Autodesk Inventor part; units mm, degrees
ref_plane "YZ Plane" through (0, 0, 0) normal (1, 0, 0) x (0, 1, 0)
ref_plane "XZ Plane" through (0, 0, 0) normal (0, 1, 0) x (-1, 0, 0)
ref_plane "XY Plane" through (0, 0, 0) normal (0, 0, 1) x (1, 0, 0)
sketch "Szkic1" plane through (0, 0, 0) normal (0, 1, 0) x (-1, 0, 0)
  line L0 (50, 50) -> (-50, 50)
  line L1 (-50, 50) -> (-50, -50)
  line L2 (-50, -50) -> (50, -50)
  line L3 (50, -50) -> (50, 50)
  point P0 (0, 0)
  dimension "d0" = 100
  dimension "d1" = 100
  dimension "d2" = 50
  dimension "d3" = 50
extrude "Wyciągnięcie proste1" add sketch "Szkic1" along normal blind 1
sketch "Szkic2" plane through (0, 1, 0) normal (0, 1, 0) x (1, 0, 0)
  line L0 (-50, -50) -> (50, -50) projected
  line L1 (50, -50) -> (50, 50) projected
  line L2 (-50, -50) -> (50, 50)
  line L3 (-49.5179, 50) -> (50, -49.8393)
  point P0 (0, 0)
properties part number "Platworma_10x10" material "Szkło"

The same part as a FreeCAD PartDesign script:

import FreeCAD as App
import Part
import Sketcher
from FreeCAD import Vector

doc = App.newDocument("Part")
body = doc.addObject("PartDesign::Body", "Body")

# Sketch on XZ plane
sketch1 = body.newObject("Sketcher::SketchObject", "Sketch")
sketch1.AttachmentSupport = (doc.getObject("XZ_Plane"), [""])
sketch1.MapMode = "FlatFace"
sketch1.addGeometry([
    Part.LineSegment(Vector(-50, -50, 0), Vector(-50, 50, 0)),
    Part.LineSegment(Vector(-50, 50, 0), Vector(50, 50, 0)),
    Part.LineSegment(Vector(50, 50, 0), Vector(50, -50, 0)),
    Part.LineSegment(Vector(50, -50, 0), Vector(-50, -50, 0)),
], False)
sketch1.addConstraint([
    Sketcher.Constraint("Coincident", 0, 2, 1, 1),
    Sketcher.Constraint("Coincident", 1, 2, 2, 1),
    Sketcher.Constraint("Coincident", 2, 2, 3, 1),
    Sketcher.Constraint("Coincident", 3, 2, 0, 1),
    Sketcher.Constraint("Vertical", 0),
    Sketcher.Constraint("Horizontal", 1),
    Sketcher.Constraint("Vertical", 2),
    Sketcher.Constraint("Horizontal", 3),
    Sketcher.Constraint("Symmetric", 0, 2, 2, 2, -1, 1),
    Sketcher.Constraint("Equal", 3, 0),
    Sketcher.Constraint("DistanceX", 1, 1, 1, 2, 100.0),
])
pad1 = body.newObject("PartDesign::Pad", "Pad")
pad1.Profile = sketch1
pad1.Length = 1
pad1.Reversed = True

doc.recompute()
